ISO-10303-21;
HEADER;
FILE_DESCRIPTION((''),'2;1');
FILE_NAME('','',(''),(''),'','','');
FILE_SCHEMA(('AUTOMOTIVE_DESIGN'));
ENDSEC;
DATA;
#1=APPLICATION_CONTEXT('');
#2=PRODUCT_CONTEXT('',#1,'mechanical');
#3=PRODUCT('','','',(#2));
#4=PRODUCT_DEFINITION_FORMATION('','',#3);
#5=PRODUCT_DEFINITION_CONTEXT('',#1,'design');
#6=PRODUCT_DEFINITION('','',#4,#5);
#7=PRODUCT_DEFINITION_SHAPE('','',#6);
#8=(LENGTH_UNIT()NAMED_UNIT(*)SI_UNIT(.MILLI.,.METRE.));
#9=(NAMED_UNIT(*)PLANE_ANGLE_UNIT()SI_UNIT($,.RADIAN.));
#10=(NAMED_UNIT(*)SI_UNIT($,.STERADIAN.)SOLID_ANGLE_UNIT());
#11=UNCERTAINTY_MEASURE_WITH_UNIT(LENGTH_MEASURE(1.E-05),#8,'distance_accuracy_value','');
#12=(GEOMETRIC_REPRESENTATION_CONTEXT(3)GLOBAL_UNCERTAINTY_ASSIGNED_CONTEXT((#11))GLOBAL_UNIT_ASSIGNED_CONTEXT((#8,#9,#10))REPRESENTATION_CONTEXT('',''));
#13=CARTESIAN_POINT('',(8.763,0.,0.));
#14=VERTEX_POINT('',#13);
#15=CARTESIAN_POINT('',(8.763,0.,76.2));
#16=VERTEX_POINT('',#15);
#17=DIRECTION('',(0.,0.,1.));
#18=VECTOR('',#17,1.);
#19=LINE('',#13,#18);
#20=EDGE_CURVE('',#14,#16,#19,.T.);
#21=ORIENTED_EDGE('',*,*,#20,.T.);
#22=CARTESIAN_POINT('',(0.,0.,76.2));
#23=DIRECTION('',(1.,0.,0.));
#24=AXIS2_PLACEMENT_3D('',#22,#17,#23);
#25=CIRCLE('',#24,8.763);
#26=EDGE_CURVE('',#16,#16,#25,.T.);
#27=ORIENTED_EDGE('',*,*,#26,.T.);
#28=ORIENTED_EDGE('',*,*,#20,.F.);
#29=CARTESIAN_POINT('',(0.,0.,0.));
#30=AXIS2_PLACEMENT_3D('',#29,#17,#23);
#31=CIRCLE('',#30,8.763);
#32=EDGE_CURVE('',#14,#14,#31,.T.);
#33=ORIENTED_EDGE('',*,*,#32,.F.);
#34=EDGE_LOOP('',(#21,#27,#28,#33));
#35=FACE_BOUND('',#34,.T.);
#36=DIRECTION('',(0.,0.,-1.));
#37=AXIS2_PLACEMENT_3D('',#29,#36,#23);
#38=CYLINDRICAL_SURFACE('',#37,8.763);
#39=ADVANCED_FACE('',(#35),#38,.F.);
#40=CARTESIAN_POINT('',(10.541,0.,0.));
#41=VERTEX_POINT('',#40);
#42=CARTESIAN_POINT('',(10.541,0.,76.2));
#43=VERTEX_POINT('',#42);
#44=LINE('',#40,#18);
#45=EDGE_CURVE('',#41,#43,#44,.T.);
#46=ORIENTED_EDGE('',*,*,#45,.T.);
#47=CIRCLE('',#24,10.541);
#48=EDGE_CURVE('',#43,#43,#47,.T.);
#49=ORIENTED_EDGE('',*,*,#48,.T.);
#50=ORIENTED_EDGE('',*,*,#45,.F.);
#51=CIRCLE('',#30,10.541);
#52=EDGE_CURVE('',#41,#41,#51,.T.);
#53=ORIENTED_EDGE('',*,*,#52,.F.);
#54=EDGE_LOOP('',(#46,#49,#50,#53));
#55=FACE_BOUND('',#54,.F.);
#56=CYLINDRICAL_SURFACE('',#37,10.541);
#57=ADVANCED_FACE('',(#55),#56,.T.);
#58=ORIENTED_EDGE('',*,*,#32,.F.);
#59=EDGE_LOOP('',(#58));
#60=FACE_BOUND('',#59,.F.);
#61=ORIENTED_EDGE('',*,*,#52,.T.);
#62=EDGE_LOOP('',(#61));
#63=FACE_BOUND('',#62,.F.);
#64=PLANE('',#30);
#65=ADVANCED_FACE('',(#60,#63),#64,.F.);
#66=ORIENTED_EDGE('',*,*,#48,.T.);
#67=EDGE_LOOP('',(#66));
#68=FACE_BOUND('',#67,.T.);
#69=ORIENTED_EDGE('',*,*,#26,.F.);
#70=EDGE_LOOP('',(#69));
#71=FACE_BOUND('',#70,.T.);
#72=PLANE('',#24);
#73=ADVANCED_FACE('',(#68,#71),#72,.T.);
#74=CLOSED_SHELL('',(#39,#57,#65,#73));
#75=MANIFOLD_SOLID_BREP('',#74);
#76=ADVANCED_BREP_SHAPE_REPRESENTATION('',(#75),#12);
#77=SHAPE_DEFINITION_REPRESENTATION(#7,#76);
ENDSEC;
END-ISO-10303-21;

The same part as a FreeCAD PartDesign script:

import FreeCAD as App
import Part
import Sketcher
from FreeCAD import Vector
Q = App.Units.Quantity

doc = App.newDocument("Part")
body = doc.addObject("PartDesign::Body", "Body")

# Sketch on XY plane
sketch1 = body.newObject("Sketcher::SketchObject", "Sketch")
sketch1.AttachmentSupport = (doc.getObject("XY_Plane"), [""])
sketch1.MapMode = "FlatFace"
sketch1.addGeometry([
    Part.Circle(Vector(0, 0, 0), Vector(0, 0, 1), 11),
    Part.Circle(Vector(0, 0, 0), Vector(0, 0, 1), 9),
], False)
sketch1.addConstraint([
    Sketcher.Constraint("Coincident", 0, 3, -1, 1),
    Sketcher.Constraint("Coincident", 1, 3, -1, 1),
    Sketcher.Constraint("Diameter", 1, Q("0.69 in")),
    Sketcher.Constraint("Diameter", 0, Q("0.83 in")),
])
pad1 = body.newObject("PartDesign::Pad", "Pad")
pad1.Profile = sketch1
pad1.Length = Q("3 in")

doc.recompute()
